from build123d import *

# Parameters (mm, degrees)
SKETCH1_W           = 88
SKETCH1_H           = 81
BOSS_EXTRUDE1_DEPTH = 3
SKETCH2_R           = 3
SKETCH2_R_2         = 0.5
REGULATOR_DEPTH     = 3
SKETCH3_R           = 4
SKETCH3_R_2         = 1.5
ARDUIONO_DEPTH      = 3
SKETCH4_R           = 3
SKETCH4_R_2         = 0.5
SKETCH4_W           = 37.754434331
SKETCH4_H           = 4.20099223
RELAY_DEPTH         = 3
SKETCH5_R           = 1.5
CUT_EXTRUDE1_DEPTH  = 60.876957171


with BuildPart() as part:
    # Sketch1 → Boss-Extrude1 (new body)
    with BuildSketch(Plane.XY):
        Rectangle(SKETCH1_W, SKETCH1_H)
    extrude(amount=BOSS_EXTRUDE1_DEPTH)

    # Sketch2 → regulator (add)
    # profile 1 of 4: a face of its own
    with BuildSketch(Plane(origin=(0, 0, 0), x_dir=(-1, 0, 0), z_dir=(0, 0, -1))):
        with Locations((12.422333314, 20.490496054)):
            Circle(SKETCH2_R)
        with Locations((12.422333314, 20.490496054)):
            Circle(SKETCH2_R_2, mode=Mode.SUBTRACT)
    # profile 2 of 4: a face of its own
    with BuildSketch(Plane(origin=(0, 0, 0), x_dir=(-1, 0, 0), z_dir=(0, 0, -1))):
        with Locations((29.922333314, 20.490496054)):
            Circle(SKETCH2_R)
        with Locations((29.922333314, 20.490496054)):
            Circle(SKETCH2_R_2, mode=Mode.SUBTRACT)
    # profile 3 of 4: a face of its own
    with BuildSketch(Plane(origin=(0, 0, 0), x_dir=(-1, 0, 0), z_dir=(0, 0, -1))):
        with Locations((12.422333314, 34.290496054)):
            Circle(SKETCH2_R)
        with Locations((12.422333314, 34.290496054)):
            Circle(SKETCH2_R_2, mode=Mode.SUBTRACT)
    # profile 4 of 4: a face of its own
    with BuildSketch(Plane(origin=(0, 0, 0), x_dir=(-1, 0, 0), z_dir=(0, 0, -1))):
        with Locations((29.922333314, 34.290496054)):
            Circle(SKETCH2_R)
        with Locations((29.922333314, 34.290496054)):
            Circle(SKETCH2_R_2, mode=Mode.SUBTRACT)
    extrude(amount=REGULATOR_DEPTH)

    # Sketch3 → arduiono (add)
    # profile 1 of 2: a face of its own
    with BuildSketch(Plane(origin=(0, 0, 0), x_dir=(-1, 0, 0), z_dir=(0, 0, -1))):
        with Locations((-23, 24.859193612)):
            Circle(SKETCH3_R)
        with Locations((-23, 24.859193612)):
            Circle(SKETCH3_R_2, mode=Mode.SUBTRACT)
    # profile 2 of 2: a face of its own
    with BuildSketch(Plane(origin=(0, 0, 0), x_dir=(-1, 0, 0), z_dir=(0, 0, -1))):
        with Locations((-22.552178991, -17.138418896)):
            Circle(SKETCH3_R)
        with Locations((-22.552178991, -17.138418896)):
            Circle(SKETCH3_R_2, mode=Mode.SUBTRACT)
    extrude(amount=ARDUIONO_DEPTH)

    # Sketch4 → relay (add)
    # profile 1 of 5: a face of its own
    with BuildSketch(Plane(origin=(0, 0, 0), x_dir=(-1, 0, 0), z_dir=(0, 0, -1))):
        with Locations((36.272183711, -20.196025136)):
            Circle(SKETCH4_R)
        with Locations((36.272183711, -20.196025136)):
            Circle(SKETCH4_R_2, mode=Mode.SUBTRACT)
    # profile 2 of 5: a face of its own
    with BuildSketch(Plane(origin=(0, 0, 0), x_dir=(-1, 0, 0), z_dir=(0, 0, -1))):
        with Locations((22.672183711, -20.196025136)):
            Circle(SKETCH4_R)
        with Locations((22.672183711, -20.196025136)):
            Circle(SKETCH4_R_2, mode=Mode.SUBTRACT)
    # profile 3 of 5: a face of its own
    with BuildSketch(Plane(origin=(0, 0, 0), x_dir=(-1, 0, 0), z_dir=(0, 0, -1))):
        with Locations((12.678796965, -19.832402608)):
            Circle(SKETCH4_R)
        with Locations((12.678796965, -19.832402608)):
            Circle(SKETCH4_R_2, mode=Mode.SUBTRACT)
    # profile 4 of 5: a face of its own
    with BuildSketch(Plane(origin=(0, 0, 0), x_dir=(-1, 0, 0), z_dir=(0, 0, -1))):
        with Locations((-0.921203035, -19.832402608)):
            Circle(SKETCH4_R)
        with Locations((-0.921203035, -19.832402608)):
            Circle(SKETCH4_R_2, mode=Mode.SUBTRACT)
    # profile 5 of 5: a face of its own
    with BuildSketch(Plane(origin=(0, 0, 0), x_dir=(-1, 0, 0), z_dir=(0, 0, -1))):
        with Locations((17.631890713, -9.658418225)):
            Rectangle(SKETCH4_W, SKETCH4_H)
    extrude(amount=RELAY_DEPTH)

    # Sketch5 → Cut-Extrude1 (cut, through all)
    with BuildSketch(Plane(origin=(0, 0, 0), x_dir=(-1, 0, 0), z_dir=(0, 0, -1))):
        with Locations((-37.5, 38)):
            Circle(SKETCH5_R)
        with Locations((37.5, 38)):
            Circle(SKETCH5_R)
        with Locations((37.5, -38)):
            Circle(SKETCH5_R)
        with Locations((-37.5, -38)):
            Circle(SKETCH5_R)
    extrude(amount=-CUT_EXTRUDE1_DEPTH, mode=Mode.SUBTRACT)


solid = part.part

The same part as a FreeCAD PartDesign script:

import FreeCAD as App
import Part
import Sketcher

doc = App.newDocument("Part")
params = doc.addObject("Spreadsheet::Sheet", "Params")
for row, (alias, value) in enumerate([
    ("sketch1_width", "88 mm"),
    ("sketch1_height", "81 mm"),
    ("pad1_length", "3 mm"),
    ("sketch2_diameter", "6 mm"),
    ("sketch2_diameter2", "1 mm"),
    ("pad2_length", "3 mm"),
    ("sketch3_diameter", "8 mm"),
    ("sketch3_diameter2", "3 mm"),
    ("pad3_length", "3 mm"),
    ("sketch4_diameter", "6 mm"),
    ("sketch4_diameter2", "1 mm"),
    ("pad4_length", "3 mm"),
    ("sketch5_diameter", "3 mm"),
], start=1):
    params.set(f"A{row}", alias)
    params.set(f"B{row}", "=" + value)
    params.setAlias(f"B{row}", alias)

body = doc.addObject("PartDesign::Body", "Body")

# Sketch on XY plane
sketch1 = body.newObject("Sketcher::SketchObject", "Sketch")
sketch1.AttachmentSupport = (doc.getObject("XY_Plane"), [""])
sketch1.MapMode = "FlatFace"
sketch1.addGeometry([
    Part.LineSegment(App.Vector(-44, 40, 0), App.Vector(-44, -40, 0)),
    Part.LineSegment(App.Vector(-44, -40, 0), App.Vector(44, -40, 0)),
    Part.LineSegment(App.Vector(44, -40, 0), App.Vector(44, 40, 0)),
    Part.LineSegment(App.Vector(44, 40, 0), App.Vector(-44, 40, 0)),
], False)
sketch1.addConstraint([
    Sketcher.Constraint("Coincident", 0, 2, 1, 1),
    Sketcher.Constraint("Coincident", 1, 2, 2, 1),
    Sketcher.Constraint("Coincident", 2, 2, 3, 1),
    Sketcher.Constraint("Coincident", 3, 2, 0, 1),
    Sketcher.Constraint("Vertical", 0),
    Sketcher.Constraint("Horizontal", 1),
    Sketcher.Constraint("Vertical", 2),
    Sketcher.Constraint("Horizontal", 3),
    Sketcher.Constraint("Symmetric", 0, 2, 2, 2, -1, 1),
    Sketcher.Constraint("DistanceX", 1, 1, 1, 2, 88.0),
    Sketcher.Constraint("DistanceY", 0, 2, 0, 1, 81.0),
])
sketch1.setExpression("Constraints[9]", "Params.sketch1_width")
sketch1.setExpression("Constraints[10]", "Params.sketch1_height")
pad1 = body.newObject("PartDesign::Pad", "Pad")
pad1.Profile = sketch1
pad1.setExpression("Length", "Params.pad1_length")

# Sketch on XY plane
sketch2 = body.newObject("Sketcher::SketchObject", "Sketch001")
sketch2.AttachmentSupport = (doc.getObject("XY_Plane"), [""])
sketch2.MapMode = "FlatFace"
sketch2.addGeometry([
    Part.Circle(App.Vector(-12.4, 20.5, 0), App.Vector(0, 0, 1), 3),  # 0
    Part.Circle(App.Vector(-12.4, 20.5, 0), App.Vector(0, 0, 1), 0.5),  # 1
    Part.Circle(App.Vector(-29.9, 20.5, 0), App.Vector(0, 0, 1), 3),  # 2
    Part.Circle(App.Vector(-29.9, 20.5, 0), App.Vector(0, 0, 1), 0.5),  # 3
    Part.Circle(App.Vector(-12.4, 34.3, 0), App.Vector(0, 0, 1), 3),  # 4
    Part.Circle(App.Vector(-12.4, 34.3, 0), App.Vector(0, 0, 1), 0.5),  # 5
    Part.Circle(App.Vector(-29.9, 34.3, 0), App.Vector(0, 0, 1), 3),  # 6
    Part.Circle(App.Vector(-29.9, 34.3, 0), App.Vector(0, 0, 1), 0.5),  # 7
], False)
sketch2.addConstraint([
    Sketcher.Constraint("Coincident", 1, 3, 0, 3),
    Sketcher.Constraint("Coincident", 3, 3, 2, 3),
    Sketcher.Constraint("Coincident", 5, 3, 4, 3),
    Sketcher.Constraint("Coincident", 7, 3, 6, 3),
    Sketcher.Constraint("Equal", 0, 2),
    Sketcher.Constraint("Equal", 1, 3),
    Sketcher.Constraint("Equal", 2, 4),
    Sketcher.Constraint("Equal", 3, 5),
    Sketcher.Constraint("Equal", 4, 6),
    Sketcher.Constraint("Equal", 5, 7),
    Sketcher.Constraint("Horizontal", 1, 3, 2, 3),
    Sketcher.Constraint("Horizontal", 5, 3, 6, 3),
    Sketcher.Constraint("Vertical", 1, 3, 4, 3),
    Sketcher.Constraint("Vertical", 3, 3, 6, 3),
    Sketcher.Constraint("Diameter", 0, 6.0),
    Sketcher.Constraint("Diameter", 1, 1.0),
    Sketcher.Constraint("DistanceX", 2, 3, 0, 3, 17.5),
    Sketcher.Constraint("DistanceY", 0, 3, 4, 3, 13.8),
    Sketcher.Constraint("DistanceX", 0, 3, -1, 1, 12.422333),
    Sketcher.Constraint("DistanceY", -1, 1, 0, 3, 20.490496),
])
sketch2.setExpression("Constraints[14]", "Params.sketch2_diameter")
sketch2.setExpression("Constraints[15]", "Params.sketch2_diameter2")
pad2 = body.newObject("PartDesign::Pad", "Pad001")
pad2.Profile = sketch2
pad2.setExpression("Length", "Params.pad2_length")
pad2.Reversed = True

# Sketch on XY plane
sketch3 = body.newObject("Sketcher::SketchObject", "Sketch002")
sketch3.AttachmentSupport = (doc.getObject("XY_Plane"), [""])
sketch3.MapMode = "FlatFace"
sketch3.addGeometry([
    Part.Circle(App.Vector(23, 24.9, 0), App.Vector(0, 0, 1), 4),
    Part.Circle(App.Vector(23, 24.9, 0), App.Vector(0, 0, 1), 1.5),
    Part.Circle(App.Vector(22.6, -17.1, 0), App.Vector(0, 0, 1), 4),
    Part.Circle(App.Vector(22.6, -17.1, 0), App.Vector(0, 0, 1), 1.5),
], False)
sketch3.addConstraint([
    Sketcher.Constraint("Coincident", 1, 3, 0, 3),
    Sketcher.Constraint("Coincident", 3, 3, 2, 3),
    Sketcher.Constraint("Equal", 0, 2),
    Sketcher.Constraint("Equal", 1, 3),
    Sketcher.Constraint("Diameter", 0, 8.0),
    Sketcher.Constraint("Diameter", 1, 3.0),
    Sketcher.Constraint("DistanceX", -1, 1, 0, 3, 23.0),
    Sketcher.Constraint("DistanceX", -1, 1, 2, 3, 22.552179),
    Sketcher.Constraint("DistanceY", 2, 3, -1, 1, 17.138419),
    Sketcher.Constraint("DistanceY", -1, 1, 0, 3, 24.859194),
])
sketch3.setExpression("Constraints[4]", "Params.sketch3_diameter")
sketch3.setExpression("Constraints[5]", "Params.sketch3_diameter2")
pad3 = body.newObject("PartDesign::Pad", "Pad002")
pad3.Profile = sketch3
pad3.setExpression("Length", "Params.pad3_length")
pad3.Reversed = True

# Sketch on XY plane
sketch4 = body.newObject("Sketcher::SketchObject", "Sketch003")
sketch4.AttachmentSupport = (doc.getObject("XY_Plane"), [""])
sketch4.MapMode = "FlatFace"
sketch4.addGeometry([
    Part.Circle(App.Vector(-36.3, -20.2, 0), App.Vector(0, 0, 1), 3),  # 0
    Part.Circle(App.Vector(-36.3, -20.2, 0), App.Vector(0, 0, 1), 0.5),  # 1
    Part.Circle(App.Vector(-22.7, -20.2, 0), App.Vector(0, 0, 1), 3),  # 2
    Part.Circle(App.Vector(-22.7, -20.2, 0), App.Vector(0, 0, 1), 0.5),  # 3
    Part.Circle(App.Vector(-12.7, -19.8, 0), App.Vector(0, 0, 1), 3),  # 4
    Part.Circle(App.Vector(-12.7, -19.8, 0), App.Vector(0, 0, 1), 0.5),  # 5
    Part.Circle(App.Vector(0.9, -19.8, 0), App.Vector(0, 0, 1), 3),  # 6
    Part.Circle(App.Vector(0.9, -19.8, 0), App.Vector(0, 0, 1), 0.5),  # 7
    Part.LineSegment(App.Vector(1.2, -7.6, 0), App.Vector(1.2, -11.8, 0)),  # 8
    Part.LineSegment(App.Vector(1.2, -11.8, 0), App.Vector(-36.5, -11.8, 0)),  # 9
    Part.LineSegment(App.Vector(-36.5, -11.8, 0), App.Vector(-36.5, -7.6, 0)),  # 10
    Part.LineSegment(App.Vector(-36.5, -7.6, 0), App.Vector(1.2, -7.6, 0)),  # 11
], False)
sketch4.addConstraint([
    Sketcher.Constraint("Coincident", 8, 2, 9, 1),
    Sketcher.Constraint("Coincident", 9, 2, 10, 1),
    Sketcher.Constraint("Coincident", 10, 2, 11, 1),
    Sketcher.Constraint("Coincident", 11, 2, 8, 1),
    Sketcher.Constraint("Vertical", 8),
    Sketcher.Constraint("Horizontal", 9),
    Sketcher.Constraint("Vertical", 10),
    Sketcher.Constraint("Horizontal", 11),
    Sketcher.Constraint("Coincident", 1, 3, 0, 3),
    Sketcher.Constraint("Coincident", 3, 3, 2, 3),
    Sketcher.Constraint("Coincident", 5, 3, 4, 3),
    Sketcher.Constraint("Coincident", 7, 3, 6, 3),
    Sketcher.Constraint("Equal", 0, 2),
    Sketcher.Constraint("Equal", 1, 3),
    Sketcher.Constraint("Equal", 2, 4),
    Sketcher.Constraint("Equal", 3, 5),
    Sketcher.Constraint("Equal", 4, 6),
    Sketcher.Constraint("Equal", 5, 7),
    Sketcher.Constraint("Horizontal", 1, 3, 2, 3),
    Sketcher.Constraint("Horizontal", 5, 3, 6, 3),
    Sketcher.Constraint("Diameter", 0, 6.0),
    Sketcher.Constraint("Diameter", 1, 1.0),
    Sketcher.Constraint("DistanceX", 0, 3, 2, 3, 13.6),
    Sketcher.Constraint("DistanceX", 4, 3, 6, 3, 13.6),
    Sketcher.Constraint("DistanceX", 9, 2, 9, 1, 37.754434),
    Sketcher.Constraint("DistanceY", 8, 2, 8, 1, 4.200992),
    Sketcher.Constraint("DistanceY", 6, 3, 8, 2, 8.073488),
    Sketcher.Constraint("DistanceX", 2, 3, 8, 2, 23.91751),
    Sketcher.Constraint("DistanceY", 2, 3, 8, 2, 8.437111),
    Sketcher.Constraint("DistanceX", 9, 2, 4, 3, 23.830311),
    Sketcher.Constraint("DistanceX", 0, 3, -1, 1, 36.272184),
    Sketcher.Constraint("DistanceY", 0, 3, -1, 1, 20.196025),
])
sketch4.setExpression("Constraints[20]", "Params.sketch4_diameter")
sketch4.setExpression("Constraints[21]", "Params.sketch4_diameter2")
pad4 = body.newObject("PartDesign::Pad", "Pad003")
pad4.Profile = sketch4
pad4.setExpression("Length", "Params.pad4_length")
pad4.Reversed = True

# Sketch on XY plane
sketch5 = body.newObject("Sketcher::SketchObject", "Sketch004")
sketch5.AttachmentSupport = (doc.getObject("XY_Plane"), [""])
sketch5.MapMode = "FlatFace"
sketch5.addGeometry([
    Part.Circle(App.Vector(37.5, 38, 0), App.Vector(0, 0, 1), 1.5),
    Part.Circle(App.Vector(-37.5, 38, 0), App.Vector(0, 0, 1), 1.5),
    Part.Circle(App.Vector(-37.5, -38, 0), App.Vector(0, 0, 1), 1.5),
    Part.Circle(App.Vector(37.5, -38, 0), App.Vector(0, 0, 1), 1.5),
], False)
sketch5.addConstraint([
    Sketcher.Constraint("Equal", 0, 1),
    Sketcher.Constraint("Equal", 1, 2),
    Sketcher.Constraint("Equal", 2, 3),
    Sketcher.Constraint("Symmetric", 0, 3, 2, 3, -1, 1),
    Sketcher.Constraint("Symmetric", 1, 3, 3, 3, -1, 1),
    Sketcher.Constraint("Symmetric", 0, 3, 1, 3, -2),
    Sketcher.Constraint("Diameter", 0, 3.0),
    Sketcher.Constraint("DistanceY", -1, 1, 0, 3, 38.0),
    Sketcher.Constraint("DistanceX", 1, 3, 0, 3, 75.0),
])
sketch5.setExpression("Constraints[6]", "Params.sketch5_diameter")
pocket1 = body.newObject("PartDesign::Pocket", "Pocket")
pocket1.Profile = sketch5
pocket1.Type = "ThroughAll"
pocket1.Reversed = True

doc.recompute()
